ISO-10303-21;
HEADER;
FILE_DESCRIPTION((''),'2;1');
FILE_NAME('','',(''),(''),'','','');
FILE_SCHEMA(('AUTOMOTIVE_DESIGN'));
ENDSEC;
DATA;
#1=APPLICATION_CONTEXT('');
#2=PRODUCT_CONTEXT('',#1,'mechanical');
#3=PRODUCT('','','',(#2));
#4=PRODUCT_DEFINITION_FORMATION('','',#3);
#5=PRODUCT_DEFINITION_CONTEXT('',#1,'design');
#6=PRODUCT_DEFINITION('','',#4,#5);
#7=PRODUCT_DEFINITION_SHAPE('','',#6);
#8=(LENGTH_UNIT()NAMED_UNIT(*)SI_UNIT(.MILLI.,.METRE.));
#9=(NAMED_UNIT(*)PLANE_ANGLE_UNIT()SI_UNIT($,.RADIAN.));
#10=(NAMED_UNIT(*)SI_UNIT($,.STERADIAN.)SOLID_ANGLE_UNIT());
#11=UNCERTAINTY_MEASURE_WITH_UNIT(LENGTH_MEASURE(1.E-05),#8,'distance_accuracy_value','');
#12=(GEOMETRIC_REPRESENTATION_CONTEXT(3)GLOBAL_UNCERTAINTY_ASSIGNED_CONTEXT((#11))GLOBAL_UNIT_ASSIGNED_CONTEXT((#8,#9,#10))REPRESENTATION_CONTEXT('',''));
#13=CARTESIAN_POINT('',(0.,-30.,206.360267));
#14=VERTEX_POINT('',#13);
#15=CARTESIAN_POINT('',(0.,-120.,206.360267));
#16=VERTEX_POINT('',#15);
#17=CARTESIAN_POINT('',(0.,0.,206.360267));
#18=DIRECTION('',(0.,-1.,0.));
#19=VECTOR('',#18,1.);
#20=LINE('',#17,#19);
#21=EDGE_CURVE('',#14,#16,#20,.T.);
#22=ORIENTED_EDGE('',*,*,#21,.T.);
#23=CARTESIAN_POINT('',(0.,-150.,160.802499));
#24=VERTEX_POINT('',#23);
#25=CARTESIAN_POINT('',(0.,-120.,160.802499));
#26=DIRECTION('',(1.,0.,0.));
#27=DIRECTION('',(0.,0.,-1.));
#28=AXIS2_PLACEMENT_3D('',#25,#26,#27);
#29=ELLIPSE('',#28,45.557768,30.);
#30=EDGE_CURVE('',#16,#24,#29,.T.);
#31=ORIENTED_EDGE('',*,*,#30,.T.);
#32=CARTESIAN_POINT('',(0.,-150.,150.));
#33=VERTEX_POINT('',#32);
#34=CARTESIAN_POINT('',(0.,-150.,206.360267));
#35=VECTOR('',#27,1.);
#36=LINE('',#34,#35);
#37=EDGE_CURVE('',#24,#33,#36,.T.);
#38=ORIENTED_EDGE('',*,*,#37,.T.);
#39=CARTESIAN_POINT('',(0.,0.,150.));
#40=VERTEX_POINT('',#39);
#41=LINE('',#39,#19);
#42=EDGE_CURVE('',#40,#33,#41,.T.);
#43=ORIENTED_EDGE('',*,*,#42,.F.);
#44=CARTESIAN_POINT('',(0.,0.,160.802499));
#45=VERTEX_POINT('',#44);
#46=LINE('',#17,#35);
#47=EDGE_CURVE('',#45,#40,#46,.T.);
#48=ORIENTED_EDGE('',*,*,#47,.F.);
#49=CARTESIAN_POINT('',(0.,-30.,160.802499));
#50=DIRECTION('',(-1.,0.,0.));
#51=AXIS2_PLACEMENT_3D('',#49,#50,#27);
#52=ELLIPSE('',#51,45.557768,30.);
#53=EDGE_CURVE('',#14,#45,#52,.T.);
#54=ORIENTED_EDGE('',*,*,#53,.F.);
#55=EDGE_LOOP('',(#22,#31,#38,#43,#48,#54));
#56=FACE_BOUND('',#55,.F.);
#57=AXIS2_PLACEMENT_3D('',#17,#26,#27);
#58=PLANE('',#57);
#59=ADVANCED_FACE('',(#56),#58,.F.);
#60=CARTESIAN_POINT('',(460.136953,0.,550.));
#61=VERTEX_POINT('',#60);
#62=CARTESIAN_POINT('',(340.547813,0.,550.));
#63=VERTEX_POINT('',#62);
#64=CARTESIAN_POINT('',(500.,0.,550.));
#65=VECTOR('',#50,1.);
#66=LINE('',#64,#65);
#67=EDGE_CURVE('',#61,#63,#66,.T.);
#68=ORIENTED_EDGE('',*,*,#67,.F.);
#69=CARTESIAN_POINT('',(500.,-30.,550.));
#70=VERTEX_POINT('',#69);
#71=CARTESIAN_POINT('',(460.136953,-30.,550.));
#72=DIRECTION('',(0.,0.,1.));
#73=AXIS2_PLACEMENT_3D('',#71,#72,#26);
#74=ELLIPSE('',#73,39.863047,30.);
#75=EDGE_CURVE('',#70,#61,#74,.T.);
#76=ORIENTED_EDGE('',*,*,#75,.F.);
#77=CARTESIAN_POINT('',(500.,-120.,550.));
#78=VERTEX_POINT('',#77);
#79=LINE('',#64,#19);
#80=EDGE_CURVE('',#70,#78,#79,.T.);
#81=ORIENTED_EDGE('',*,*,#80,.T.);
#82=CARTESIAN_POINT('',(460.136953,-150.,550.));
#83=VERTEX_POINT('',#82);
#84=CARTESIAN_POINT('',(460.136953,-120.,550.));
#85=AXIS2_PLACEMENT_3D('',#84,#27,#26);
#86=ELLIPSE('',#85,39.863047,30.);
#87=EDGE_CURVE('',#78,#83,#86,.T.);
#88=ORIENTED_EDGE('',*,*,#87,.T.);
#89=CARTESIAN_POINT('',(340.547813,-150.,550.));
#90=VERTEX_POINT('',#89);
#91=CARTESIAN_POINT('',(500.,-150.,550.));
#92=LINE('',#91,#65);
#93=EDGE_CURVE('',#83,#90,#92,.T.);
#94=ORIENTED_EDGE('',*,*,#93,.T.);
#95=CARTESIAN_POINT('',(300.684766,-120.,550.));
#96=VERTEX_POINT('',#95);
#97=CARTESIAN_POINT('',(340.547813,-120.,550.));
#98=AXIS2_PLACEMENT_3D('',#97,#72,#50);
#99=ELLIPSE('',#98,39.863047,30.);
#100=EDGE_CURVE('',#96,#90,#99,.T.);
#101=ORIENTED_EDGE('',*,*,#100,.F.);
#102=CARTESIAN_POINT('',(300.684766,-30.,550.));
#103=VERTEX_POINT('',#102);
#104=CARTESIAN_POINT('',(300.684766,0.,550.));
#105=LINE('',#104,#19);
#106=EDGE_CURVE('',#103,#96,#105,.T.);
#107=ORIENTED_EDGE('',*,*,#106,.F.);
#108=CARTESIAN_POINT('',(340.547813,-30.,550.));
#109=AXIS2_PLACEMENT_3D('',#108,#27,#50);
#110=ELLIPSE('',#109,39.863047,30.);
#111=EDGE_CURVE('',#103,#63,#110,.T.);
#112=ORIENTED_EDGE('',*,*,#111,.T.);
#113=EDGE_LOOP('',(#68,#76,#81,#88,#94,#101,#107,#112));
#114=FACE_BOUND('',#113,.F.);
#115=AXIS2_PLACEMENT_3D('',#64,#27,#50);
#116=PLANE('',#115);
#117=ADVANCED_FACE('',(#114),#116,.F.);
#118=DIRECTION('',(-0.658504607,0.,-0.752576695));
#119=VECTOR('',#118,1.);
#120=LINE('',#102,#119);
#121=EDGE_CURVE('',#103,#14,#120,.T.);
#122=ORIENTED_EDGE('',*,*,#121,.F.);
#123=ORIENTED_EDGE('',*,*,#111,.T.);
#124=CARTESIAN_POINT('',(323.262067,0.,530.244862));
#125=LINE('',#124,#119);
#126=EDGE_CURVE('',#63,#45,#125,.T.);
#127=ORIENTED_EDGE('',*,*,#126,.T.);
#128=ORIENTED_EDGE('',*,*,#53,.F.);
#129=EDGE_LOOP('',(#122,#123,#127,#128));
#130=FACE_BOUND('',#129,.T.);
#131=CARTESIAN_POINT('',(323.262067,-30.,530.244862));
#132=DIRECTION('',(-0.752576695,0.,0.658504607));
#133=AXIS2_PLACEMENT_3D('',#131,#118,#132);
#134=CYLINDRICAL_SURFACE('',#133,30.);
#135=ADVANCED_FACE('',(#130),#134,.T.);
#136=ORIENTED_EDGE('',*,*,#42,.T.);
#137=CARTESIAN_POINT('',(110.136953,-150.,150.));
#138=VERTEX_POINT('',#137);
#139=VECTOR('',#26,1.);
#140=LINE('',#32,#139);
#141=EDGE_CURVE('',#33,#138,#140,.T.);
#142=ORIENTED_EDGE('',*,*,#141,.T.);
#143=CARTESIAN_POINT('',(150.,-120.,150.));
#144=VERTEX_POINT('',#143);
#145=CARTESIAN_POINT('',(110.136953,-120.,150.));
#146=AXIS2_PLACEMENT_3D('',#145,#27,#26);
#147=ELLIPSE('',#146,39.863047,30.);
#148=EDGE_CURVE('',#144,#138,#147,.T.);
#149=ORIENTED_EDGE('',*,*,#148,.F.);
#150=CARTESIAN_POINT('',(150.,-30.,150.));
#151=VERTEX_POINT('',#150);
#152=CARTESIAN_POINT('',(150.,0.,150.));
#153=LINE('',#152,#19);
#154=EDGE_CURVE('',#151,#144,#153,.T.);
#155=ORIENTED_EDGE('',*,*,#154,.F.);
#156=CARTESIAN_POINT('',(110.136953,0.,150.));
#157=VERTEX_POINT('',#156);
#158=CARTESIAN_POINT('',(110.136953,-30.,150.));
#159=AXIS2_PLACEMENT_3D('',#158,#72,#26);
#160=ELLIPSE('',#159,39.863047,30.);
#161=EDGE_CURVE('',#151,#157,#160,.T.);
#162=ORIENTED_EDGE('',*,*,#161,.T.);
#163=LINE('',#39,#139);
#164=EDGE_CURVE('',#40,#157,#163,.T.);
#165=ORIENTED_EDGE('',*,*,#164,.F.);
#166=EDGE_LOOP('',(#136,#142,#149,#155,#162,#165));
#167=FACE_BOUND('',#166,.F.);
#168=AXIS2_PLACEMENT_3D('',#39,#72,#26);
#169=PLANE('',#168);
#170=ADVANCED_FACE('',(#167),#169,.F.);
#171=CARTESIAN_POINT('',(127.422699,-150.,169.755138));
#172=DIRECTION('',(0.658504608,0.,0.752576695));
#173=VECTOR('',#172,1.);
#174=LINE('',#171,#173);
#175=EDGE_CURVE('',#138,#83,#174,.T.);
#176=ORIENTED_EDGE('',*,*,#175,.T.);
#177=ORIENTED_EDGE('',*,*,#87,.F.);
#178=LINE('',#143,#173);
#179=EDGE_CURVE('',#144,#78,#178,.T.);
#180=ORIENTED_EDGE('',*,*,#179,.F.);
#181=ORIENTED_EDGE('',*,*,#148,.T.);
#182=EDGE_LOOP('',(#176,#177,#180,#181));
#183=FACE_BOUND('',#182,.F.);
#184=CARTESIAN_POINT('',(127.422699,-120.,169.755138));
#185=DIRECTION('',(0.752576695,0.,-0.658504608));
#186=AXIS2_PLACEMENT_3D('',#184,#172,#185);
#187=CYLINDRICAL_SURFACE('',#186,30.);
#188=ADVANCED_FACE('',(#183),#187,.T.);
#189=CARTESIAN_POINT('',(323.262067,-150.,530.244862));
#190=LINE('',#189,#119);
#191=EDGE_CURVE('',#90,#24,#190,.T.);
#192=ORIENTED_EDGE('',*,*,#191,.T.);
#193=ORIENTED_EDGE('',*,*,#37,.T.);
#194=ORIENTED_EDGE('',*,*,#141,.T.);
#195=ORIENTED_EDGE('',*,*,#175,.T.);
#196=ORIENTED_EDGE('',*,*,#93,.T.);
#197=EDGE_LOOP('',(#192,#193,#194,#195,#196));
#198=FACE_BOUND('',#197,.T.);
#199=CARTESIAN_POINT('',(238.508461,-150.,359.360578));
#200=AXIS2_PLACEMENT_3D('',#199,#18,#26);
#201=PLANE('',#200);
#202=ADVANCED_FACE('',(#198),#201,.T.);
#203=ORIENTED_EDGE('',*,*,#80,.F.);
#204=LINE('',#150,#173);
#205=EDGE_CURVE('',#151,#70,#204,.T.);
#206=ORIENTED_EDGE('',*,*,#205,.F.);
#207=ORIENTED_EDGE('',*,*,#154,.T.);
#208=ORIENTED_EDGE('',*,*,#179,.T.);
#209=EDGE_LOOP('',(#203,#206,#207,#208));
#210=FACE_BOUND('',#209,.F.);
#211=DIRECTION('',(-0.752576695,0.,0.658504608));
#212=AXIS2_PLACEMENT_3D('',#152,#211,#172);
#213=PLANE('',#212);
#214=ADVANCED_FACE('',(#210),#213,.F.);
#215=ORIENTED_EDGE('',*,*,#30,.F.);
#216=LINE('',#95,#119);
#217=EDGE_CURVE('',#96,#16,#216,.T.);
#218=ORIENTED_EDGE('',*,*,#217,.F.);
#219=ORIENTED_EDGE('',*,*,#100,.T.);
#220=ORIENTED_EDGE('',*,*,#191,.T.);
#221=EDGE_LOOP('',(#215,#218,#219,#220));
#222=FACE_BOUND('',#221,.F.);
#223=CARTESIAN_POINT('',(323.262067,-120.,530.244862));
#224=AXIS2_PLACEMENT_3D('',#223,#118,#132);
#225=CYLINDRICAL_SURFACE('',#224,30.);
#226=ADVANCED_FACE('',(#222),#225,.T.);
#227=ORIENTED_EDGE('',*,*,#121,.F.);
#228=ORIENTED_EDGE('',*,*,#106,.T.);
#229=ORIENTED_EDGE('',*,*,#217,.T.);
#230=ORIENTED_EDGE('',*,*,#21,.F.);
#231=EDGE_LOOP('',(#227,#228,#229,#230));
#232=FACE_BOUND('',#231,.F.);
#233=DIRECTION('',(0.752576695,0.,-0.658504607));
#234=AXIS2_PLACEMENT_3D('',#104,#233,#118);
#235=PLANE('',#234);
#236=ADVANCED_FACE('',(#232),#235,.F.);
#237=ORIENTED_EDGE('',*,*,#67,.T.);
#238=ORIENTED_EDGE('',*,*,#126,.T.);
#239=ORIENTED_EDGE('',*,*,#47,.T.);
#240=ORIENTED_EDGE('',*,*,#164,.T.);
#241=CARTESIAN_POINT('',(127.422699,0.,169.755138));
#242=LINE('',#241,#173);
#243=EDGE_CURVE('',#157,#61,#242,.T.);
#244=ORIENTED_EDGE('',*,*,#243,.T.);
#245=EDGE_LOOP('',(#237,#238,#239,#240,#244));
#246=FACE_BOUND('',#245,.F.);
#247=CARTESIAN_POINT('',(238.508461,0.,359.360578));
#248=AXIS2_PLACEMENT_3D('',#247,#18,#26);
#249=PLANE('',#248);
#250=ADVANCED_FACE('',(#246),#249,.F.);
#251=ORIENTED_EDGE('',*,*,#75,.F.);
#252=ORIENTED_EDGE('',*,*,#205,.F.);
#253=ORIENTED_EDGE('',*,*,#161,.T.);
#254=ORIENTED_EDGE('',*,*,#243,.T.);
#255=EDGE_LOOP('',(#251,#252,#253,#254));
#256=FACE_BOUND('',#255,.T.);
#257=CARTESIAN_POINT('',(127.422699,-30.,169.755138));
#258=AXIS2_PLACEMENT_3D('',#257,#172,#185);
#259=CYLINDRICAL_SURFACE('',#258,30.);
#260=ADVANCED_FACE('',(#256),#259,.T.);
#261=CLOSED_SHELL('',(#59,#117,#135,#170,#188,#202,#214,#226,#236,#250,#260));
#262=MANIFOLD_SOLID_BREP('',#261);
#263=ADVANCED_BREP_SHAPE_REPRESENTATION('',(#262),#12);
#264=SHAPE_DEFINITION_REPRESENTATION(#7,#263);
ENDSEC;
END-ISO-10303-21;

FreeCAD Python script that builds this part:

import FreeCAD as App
import Part
import Sketcher
from FreeCAD import Vector
Q = App.Units.Quantity


def edges_at(feature, points):
    """Names of the edges that pass closest to the given points."""
    edges = feature.Shape.Edges
    near = lambda p: min(range(len(edges)), key=lambda i: edges[i].distToShape(Part.Vertex(*p))[0])
    return sorted({f"Edge{near(p) + 1}" for p in points})

doc = App.newDocument("Part")
params = doc.addObject("Spreadsheet::Sheet", "Params")
for row, (alias, value) in enumerate([
    ("sketch1_width", "150 mm"),
    ("pad1_length", "150 mm"),
    ("fillet_radius", "30 mm"),
], start=1):
    params.set(f"A{row}", alias)
    params.set(f"B{row}", "=" + value)
    params.setAlias(f"B{row}", alias)

body = doc.addObject("PartDesign::Body", "Body")

sketch1 = doc.addObject("Sketcher::SketchObject", "Sketch")
body.addObject(sketch1)
sketch1.AttachmentSupport = (doc.XZ_Plane, [""])
sketch1.MapMode = "FlatFace"
sketch1.addGeometry(Part.LineSegment(Vector(0, 206.360267, 0), Vector(0, 150, 0)), False)
sketch1.addGeometry(Part.LineSegment(Vector(0, 150, 0), Vector(150, 150, 0)), False)
sketch1.addGeometry(Part.LineSegment(Vector(150, 150, 0), Vector(500, 550, 0)), False)
sketch1.addGeometry(Part.LineSegment(Vector(500, 550, 0), Vector(300.684766, 550, 0)), False)
sketch1.addGeometry(Part.LineSegment(Vector(300.684766, 550, 0), Vector(0, 206.360267, 0)), False)
sketch1.addConstraint(Sketcher.Constraint("Coincident", 0, 2, 1, 1))
sketch1.addConstraint(Sketcher.Constraint("Coincident", 1, 2, 2, 1))
sketch1.addConstraint(Sketcher.Constraint("Coincident", 2, 2, 3, 1))
sketch1.addConstraint(Sketcher.Constraint("Coincident", 3, 2, 4, 1))
sketch1.addConstraint(Sketcher.Constraint("Coincident", 4, 2, 0, 1))
sketch1.addConstraint(Sketcher.Constraint("Vertical", 0))
sketch1.addConstraint(Sketcher.Constraint("Horizontal", 1))
sketch1.addConstraint(Sketcher.Constraint("Horizontal", 3))
sketch1.addConstraint(Sketcher.Constraint("PointOnObject", 0, 2, -2))
sketch1.addConstraint(Sketcher.Constraint("Parallel", 2, 4))
sketch1.addConstraint(Sketcher.Constraint("DistanceX", 1, 1, 1, 2, Q("150 mm")))
sketch1.addConstraint(Sketcher.Constraint("DistanceY", -1, 1, 0, 2, Q("150 mm")))
sketch1.addConstraint(Sketcher.Constraint("DistanceX", -1, 1, 2, 2, Q("500 mm")))
sketch1.addConstraint(Sketcher.Constraint("DistanceY", -1, 1, 2, 2, Q("550 mm")))
sketch1.addConstraint(Sketcher.Constraint("Distance", 4, Q("456.617558 mm")))
sketch1.setExpression("Constraints[10]", "Params.sketch1_width")
pad1 = doc.addObject("PartDesign::Pad", "Pad")
body.addObject(pad1)
pad1.Profile = sketch1
pad1.setExpression("Length", "Params.pad1_length")
doc.recompute()

fillet = doc.addObject("PartDesign::Fillet", "Fillet")
body.addObject(fillet)
fillet.Base = (pad1, edges_at(pad1, [
    (150.342, -150, 378.18),
    (325, -150, 350),
    (325, 0, 350),
    (150.342, 0, 378.18),
]))
fillet.setExpression("Radius", "Params.fillet_radius")

doc.recompute()
